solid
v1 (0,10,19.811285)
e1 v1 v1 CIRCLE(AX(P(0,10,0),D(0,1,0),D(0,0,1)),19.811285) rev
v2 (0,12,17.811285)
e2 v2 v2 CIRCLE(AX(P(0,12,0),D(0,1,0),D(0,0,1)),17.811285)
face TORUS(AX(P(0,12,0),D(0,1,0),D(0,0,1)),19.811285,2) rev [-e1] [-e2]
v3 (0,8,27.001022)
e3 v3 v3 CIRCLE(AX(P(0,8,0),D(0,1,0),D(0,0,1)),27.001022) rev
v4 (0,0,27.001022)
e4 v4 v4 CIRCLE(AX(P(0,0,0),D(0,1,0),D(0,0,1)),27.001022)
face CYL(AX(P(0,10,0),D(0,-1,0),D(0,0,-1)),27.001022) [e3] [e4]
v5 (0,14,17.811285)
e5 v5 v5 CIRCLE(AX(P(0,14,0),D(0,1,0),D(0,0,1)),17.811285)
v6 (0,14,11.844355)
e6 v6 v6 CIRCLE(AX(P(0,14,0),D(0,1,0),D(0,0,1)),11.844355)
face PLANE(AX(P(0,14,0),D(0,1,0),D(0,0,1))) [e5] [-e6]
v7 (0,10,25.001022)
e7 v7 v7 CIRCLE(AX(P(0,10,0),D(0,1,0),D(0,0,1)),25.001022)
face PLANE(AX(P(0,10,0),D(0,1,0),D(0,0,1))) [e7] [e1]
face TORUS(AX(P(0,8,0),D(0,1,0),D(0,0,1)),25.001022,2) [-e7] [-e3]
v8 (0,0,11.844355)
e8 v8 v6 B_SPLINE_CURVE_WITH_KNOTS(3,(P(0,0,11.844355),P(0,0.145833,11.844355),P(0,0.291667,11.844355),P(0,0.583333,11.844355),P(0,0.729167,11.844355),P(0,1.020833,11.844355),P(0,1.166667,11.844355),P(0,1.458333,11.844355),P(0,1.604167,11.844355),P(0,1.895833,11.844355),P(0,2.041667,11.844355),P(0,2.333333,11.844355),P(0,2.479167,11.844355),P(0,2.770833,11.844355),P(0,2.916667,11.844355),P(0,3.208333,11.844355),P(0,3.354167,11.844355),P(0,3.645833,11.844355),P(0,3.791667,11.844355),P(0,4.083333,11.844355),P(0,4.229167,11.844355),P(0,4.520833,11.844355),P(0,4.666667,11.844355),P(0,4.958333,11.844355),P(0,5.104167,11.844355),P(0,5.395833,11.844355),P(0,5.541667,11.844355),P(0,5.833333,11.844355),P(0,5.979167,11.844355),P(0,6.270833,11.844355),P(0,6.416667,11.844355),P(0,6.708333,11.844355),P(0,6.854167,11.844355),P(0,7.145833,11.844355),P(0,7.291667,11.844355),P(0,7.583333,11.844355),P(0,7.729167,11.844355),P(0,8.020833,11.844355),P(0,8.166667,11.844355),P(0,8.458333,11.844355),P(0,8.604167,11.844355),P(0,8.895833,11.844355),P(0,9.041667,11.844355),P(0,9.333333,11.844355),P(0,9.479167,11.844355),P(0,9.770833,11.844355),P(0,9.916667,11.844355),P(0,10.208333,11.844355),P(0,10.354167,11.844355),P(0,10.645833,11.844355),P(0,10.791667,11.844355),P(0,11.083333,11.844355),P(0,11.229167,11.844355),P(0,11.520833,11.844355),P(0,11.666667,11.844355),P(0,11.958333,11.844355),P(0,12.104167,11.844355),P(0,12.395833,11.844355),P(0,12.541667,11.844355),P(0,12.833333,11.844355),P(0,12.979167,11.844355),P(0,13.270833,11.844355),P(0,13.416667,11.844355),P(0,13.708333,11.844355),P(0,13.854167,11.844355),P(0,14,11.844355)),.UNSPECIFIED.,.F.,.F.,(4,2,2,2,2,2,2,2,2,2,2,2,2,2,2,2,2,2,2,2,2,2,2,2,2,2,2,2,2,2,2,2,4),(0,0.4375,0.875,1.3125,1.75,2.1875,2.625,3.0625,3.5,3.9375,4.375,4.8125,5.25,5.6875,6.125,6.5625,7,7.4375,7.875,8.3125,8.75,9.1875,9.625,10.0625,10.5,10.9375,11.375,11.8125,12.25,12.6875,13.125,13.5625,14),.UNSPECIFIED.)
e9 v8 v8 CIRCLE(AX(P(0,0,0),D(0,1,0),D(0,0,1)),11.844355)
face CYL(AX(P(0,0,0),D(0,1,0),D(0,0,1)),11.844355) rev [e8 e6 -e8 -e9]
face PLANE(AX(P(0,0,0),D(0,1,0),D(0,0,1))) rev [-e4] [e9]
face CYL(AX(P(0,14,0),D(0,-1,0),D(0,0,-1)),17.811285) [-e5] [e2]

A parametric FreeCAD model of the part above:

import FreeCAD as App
import Part
import Sketcher


def edges_at(feature, points):
    """Names of the edges that pass closest to the given points."""
    edges = feature.Shape.Edges
    near = lambda p: min(range(len(edges)), key=lambda i: edges[i].distToShape(Part.Vertex(*p))[0])
    return sorted({f"Edge{near(p) + 1}" for p in points})

doc = App.newDocument("Part")
params = doc.addObject("Spreadsheet::Sheet", "Params")
for row, (alias, value) in enumerate([
    ("pad1_length", "10 mm"),
    ("pad2_length", "4 mm"),
    ("fillet_radius", "2 mm"),
], start=1):
    params.set(f"A{row}", alias)
    params.set(f"B{row}", "=" + value)
    params.setAlias(f"B{row}", alias)

body = doc.addObject("PartDesign::Body", "Body")

# Sketch on XZ plane
sketch1 = doc.addObject("Sketcher::SketchObject", "Sketch")
body.addObject(sketch1)
sketch1.AttachmentSupport = (doc.XZ_Plane, [""])
sketch1.MapMode = "FlatFace"
sketch1.addGeometry(Part.Circle(App.Vector(0, 0, 0), App.Vector(0, 0, 1), 27), False)
sketch1.addConstraint([
    Sketcher.Constraint("Coincident", 0, 3, -1, 1),
    Sketcher.Constraint("Diameter", 0, 54.002044),
])
pad1 = doc.addObject("PartDesign::Pad", "Pad")
body.addObject(pad1)
pad1.Profile = sketch1
pad1.setExpression("Length", "Params.pad1_length")
pad1.Reversed = True

# Sketch on XZ plane
sketch2 = doc.addObject("Sketcher::SketchObject", "Sketch001")
body.addObject(sketch2)
sketch2.AttachmentSupport = (doc.XZ_Plane, [""])
sketch2.MapMode = "FlatFace"
sketch2.AttachmentOffset = App.Placement(App.Vector(0, 0, -10), App.Rotation())
sketch2.addGeometry(Part.Circle(App.Vector(0, 0, 0), App.Vector(0, 0, 1), 18), False)
sketch2.addConstraint([
    Sketcher.Constraint("Coincident", 0, 3, -1, 1),
    Sketcher.Constraint("Diameter", 0, 35.622569),
])
pad2 = doc.addObject("PartDesign::Pad", "Pad001")
body.addObject(pad2)
pad2.Profile = sketch2
pad2.setExpression("Length", "Params.pad2_length")
pad2.Reversed = True

# Sketch on XZ plane
sketch3 = doc.addObject("Sketcher::SketchObject", "Sketch002")
body.addObject(sketch3)
sketch3.AttachmentSupport = (doc.XZ_Plane, [""])
sketch3.MapMode = "FlatFace"
sketch3.AttachmentOffset = App.Placement(App.Vector(0, 0, -14), App.Rotation())
sketch3.addGeometry(Part.Circle(App.Vector(0, 0, 0), App.Vector(0, 0, 1), 12), False)
sketch3.addConstraint([
    Sketcher.Constraint("Coincident", 0, 3, -1, 1),
    Sketcher.Constraint("Diameter", 0, 23.68871),
])
pocket1 = doc.addObject("PartDesign::Pocket", "Pocket")
body.addObject(pocket1)
pocket1.Profile = sketch3
pocket1.Type = "ThroughAll"
pocket1.Reversed = True
doc.recompute()

fillet = doc.addObject("PartDesign::Fillet", "Fillet")
body.addObject(fillet)
fillet.Base = (pocket1, edges_at(pocket1, [(0, 10, -27.001), (0, 10, -17.811)]))
fillet.setExpression("Radius", "Params.fillet_radius")

doc.recompute()
